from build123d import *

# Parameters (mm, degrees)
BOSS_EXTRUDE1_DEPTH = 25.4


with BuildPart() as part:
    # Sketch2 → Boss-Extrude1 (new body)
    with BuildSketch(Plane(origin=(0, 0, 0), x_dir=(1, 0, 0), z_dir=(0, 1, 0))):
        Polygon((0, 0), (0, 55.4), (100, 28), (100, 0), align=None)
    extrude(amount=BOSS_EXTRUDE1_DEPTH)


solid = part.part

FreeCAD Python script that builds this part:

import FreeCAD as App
import Part
import Sketcher

V = App.Vector

doc = App.newDocument("Part")
body = doc.addObject("PartDesign::Body", "Body")

# Sketch on XZ plane
sketch1 = body.newObject("Sketcher::SketchObject", "Sketch")
sketch1.AttachmentSupport = (doc.getObject("XZ_Plane"), [""])
sketch1.MapMode = "FlatFace"
sketch1.addGeometry([
    Part.LineSegment(V(0, -55, 0), V(0, 0, 0)),
    Part.LineSegment(V(0, 0, 0), V(100, 0, 0)),
    Part.LineSegment(V(100, 0, 0), V(100, -28, 0)),
    Part.LineSegment(V(100, -28, 0), V(0, -55, 0)),
], False)
sketch1.addConstraint([
    Sketcher.Constraint("Coincident", 0, 2, 1, 1),
    Sketcher.Constraint("Coincident", 1, 2, 2, 1),
    Sketcher.Constraint("Coincident", 2, 2, 3, 1),
    Sketcher.Constraint("Coincident", 3, 2, 0, 1),
    Sketcher.Constraint("Vertical", 0),
    Sketcher.Constraint("Horizontal", 1),
    Sketcher.Constraint("Vertical", 2),
    Sketcher.Constraint("Coincident", 0, 2, -1, 1),
    Sketcher.Constraint("DistanceX", 1, 1, 1, 2, 100.0),
    Sketcher.Constraint("DistanceY", 2, 2, 2, 1, 28.0),
    Sketcher.Constraint("DistanceY", 0, 1, 0, 2, 55.4),
])
pad1 = body.newObject("PartDesign::Pad", "Pad")
pad1.Profile = sketch1
pad1.Length = 25.4
pad1.Reversed = True

doc.recompute()
